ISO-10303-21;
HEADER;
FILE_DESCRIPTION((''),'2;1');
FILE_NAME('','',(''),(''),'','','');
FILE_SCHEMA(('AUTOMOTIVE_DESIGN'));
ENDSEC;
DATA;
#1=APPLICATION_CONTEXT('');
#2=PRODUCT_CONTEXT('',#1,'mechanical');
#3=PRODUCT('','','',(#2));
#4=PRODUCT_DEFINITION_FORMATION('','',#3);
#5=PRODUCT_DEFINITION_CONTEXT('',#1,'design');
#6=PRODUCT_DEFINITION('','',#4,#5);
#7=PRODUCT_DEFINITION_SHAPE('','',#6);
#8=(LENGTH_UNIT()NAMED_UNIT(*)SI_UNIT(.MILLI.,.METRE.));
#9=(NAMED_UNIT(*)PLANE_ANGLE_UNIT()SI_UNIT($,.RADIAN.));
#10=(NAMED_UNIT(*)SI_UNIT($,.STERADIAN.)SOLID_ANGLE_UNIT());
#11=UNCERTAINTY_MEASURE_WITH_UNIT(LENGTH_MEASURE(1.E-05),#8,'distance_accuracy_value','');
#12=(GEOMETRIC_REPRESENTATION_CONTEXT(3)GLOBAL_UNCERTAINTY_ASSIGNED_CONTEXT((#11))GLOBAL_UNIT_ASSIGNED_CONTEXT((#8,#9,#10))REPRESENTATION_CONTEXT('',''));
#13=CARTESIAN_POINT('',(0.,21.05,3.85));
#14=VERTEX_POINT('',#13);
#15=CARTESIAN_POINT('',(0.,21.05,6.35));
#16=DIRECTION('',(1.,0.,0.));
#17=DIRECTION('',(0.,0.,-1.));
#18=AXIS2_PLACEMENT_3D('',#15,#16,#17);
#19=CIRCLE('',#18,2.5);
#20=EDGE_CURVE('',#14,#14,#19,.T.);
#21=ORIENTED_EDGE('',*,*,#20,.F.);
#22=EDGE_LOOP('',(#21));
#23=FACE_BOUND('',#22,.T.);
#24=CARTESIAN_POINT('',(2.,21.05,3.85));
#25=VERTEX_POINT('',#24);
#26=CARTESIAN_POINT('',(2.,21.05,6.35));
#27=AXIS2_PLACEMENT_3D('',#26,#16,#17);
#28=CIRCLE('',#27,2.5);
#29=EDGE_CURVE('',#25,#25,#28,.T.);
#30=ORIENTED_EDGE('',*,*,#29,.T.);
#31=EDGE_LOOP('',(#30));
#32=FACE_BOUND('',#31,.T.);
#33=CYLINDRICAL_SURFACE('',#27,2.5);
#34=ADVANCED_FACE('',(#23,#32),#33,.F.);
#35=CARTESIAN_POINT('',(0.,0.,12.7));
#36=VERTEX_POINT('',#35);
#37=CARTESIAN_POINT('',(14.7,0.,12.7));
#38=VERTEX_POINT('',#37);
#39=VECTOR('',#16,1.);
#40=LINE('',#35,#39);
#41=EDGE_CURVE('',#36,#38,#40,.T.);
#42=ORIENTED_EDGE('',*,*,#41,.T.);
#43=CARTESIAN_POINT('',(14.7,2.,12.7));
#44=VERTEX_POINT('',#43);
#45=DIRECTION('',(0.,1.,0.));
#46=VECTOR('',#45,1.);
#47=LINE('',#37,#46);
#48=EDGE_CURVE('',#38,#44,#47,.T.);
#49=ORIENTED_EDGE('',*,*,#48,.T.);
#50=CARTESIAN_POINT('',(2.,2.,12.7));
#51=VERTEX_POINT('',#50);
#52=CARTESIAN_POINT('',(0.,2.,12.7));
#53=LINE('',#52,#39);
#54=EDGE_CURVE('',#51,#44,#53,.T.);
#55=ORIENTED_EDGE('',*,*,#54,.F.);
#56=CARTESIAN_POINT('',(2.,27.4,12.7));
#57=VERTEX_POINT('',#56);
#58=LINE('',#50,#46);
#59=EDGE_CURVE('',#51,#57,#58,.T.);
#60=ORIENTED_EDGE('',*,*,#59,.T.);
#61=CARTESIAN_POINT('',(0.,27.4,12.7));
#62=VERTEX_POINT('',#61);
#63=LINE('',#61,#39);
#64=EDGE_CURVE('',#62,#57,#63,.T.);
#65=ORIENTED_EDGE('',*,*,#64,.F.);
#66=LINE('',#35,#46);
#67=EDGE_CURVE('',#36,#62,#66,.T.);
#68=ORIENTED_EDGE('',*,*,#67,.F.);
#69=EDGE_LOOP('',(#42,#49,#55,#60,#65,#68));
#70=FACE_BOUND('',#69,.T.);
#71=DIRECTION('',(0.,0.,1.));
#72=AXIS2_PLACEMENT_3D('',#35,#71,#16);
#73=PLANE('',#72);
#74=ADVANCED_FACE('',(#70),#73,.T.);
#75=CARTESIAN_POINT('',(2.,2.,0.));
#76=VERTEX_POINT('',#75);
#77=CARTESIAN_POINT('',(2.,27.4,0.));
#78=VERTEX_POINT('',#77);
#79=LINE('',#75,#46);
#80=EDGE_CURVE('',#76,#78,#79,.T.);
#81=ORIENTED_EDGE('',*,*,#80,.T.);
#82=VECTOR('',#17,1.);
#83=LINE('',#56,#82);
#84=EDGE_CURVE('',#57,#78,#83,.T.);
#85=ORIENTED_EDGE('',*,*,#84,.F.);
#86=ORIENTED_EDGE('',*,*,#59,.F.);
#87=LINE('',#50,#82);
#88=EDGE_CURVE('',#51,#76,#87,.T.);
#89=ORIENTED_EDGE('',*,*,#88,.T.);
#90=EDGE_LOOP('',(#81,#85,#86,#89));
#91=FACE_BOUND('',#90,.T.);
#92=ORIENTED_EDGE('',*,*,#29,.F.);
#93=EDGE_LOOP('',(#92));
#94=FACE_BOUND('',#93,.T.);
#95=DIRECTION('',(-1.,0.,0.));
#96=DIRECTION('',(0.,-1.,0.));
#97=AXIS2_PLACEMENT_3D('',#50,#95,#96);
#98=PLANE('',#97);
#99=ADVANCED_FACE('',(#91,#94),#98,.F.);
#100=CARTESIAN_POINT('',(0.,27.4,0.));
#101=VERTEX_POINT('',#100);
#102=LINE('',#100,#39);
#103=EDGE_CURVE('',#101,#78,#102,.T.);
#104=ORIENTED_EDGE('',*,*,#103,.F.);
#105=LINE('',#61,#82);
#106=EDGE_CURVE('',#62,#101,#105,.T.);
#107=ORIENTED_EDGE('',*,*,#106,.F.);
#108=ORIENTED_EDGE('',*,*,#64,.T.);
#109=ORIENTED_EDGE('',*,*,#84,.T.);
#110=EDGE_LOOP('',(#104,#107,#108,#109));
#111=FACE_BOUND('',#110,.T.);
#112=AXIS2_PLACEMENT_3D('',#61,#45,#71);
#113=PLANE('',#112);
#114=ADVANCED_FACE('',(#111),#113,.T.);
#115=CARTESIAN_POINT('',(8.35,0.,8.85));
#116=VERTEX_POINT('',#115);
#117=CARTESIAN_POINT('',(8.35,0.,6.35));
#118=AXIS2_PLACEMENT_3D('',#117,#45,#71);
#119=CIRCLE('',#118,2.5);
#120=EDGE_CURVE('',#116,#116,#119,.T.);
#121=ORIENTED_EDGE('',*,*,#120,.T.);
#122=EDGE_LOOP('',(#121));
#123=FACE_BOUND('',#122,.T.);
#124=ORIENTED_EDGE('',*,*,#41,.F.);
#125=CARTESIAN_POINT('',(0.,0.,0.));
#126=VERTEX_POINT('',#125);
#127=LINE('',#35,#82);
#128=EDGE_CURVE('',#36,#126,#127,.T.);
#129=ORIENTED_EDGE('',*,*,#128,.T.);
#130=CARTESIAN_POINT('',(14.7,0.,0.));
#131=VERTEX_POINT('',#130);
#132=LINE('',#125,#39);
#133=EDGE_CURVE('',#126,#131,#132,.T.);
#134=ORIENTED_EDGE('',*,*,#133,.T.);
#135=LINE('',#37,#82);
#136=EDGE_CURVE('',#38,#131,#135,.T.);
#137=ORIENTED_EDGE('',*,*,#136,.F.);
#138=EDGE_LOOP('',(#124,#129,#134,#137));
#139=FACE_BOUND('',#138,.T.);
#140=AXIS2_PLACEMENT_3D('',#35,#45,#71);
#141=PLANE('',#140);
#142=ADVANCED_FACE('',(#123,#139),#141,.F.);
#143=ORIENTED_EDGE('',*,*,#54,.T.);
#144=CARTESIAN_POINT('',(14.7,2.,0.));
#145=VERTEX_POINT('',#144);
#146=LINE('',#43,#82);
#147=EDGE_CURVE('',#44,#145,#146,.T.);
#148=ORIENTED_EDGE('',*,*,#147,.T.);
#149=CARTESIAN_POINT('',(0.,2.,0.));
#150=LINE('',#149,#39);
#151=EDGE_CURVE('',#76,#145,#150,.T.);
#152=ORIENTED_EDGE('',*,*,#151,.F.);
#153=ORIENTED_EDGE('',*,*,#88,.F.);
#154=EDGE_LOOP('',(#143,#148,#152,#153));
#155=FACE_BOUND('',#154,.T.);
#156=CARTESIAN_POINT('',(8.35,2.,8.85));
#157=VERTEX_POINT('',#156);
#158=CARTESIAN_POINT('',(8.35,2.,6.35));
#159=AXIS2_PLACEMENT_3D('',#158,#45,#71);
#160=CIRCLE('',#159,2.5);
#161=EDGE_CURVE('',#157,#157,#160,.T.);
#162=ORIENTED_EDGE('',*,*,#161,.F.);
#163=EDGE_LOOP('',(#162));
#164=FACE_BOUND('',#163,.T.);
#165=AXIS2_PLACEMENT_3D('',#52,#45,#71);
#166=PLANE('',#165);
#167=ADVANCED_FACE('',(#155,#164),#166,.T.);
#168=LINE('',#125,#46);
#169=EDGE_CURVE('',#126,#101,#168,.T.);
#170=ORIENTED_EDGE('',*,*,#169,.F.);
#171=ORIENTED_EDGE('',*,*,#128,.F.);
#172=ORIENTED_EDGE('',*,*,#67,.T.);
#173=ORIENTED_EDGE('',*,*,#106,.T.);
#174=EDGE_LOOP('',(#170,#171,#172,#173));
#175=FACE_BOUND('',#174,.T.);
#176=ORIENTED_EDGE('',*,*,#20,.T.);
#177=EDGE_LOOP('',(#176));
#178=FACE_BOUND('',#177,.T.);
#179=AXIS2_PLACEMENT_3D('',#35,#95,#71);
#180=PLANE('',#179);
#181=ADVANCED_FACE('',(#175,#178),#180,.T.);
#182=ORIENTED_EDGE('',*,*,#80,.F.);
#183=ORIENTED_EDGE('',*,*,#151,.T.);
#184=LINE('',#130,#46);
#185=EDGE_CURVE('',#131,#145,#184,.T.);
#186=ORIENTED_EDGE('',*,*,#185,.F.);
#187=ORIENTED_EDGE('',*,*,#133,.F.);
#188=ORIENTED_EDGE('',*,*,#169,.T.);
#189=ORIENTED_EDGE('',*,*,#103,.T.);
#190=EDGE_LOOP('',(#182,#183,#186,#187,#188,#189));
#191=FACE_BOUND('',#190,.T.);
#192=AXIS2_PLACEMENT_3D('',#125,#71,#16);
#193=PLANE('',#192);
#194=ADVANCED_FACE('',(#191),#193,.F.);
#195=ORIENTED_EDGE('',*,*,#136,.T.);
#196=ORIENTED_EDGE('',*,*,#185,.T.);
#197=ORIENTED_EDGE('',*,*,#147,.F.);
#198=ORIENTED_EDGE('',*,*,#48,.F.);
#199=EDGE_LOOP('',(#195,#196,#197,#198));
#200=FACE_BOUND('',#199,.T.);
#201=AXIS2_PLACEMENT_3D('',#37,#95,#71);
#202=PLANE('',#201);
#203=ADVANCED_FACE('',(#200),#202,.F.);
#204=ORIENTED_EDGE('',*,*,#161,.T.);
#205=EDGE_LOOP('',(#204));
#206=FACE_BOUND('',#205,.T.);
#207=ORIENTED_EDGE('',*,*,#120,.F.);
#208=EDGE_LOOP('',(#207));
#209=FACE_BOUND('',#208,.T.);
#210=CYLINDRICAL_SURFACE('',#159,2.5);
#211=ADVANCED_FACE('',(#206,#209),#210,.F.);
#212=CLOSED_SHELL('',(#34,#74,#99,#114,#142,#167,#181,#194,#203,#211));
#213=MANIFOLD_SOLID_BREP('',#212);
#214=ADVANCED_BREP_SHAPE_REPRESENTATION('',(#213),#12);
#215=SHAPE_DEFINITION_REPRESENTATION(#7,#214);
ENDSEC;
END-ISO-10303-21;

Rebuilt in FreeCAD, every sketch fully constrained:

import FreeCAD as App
import Part
import Sketcher
Q = App.Units.Quantity


def add_polygon(sketch, points):
    """Adds a closed chain of lines whose ends are joined by coincident constraints."""
    first, n = sketch.GeometryCount, len(points)
    for a, b in zip(points, points[1:] + points[:1]):
        sketch.addGeometry(Part.LineSegment(App.Vector(*a, 0), App.Vector(*b, 0)), False)
    for i in range(n):
        sketch.addConstraint(Sketcher.Constraint("Coincident", first + i, 2, first + (i + 1) % n, 1))

doc = App.newDocument("Part")
body = doc.addObject("PartDesign::Body", "Body")

# Sketch on XY plane
sketch1 = body.newObject("Sketcher::SketchObject", "Sketch")
sketch1.AttachmentSupport = (doc.getObject("XY_Plane"), [""])
sketch1.MapMode = "FlatFace"
add_polygon(sketch1, [(0, 0), (14.7, 0), (14.7, 2), (2, 2), (2, 27.4), (0, 27.4)])  # lines 0-5
sketch1.addConstraint([
    Sketcher.Constraint("Horizontal", 0),
    Sketcher.Constraint("Vertical", 1),
    Sketcher.Constraint("Horizontal", 2),
    Sketcher.Constraint("Vertical", 3),
    Sketcher.Constraint("Horizontal", 4),
    Sketcher.Constraint("Vertical", 5),
    Sketcher.Constraint("Coincident", 5, 2, -1, 1),
    Sketcher.Constraint("Equal", 4, 1),
    Sketcher.Constraint("DistanceX", 4, 2, 4, 1, Q("2 mm")),
    Sketcher.Constraint("DistanceX", 0, 1, 0, 2, Q("14.7 mm")),
    Sketcher.Constraint("DistanceY", 3, 1, 3, 2, Q("25.4 mm")),
])
pad1 = body.newObject("PartDesign::Pad", "Pad")
pad1.Profile = sketch1
pad1.Length = 12.7

# Sketch on YZ plane
sketch2 = body.newObject("Sketcher::SketchObject", "Sketch001")
sketch2.AttachmentSupport = (doc.getObject("YZ_Plane"), [""])
sketch2.MapMode = "FlatFace"
sketch2.AttachmentOffset = App.Placement(App.Vector(0, 0, 2), App.Rotation())
sketch2.addGeometry(Part.Circle(App.Vector(21.05, 6.35, 0), App.Vector(0, 0, 1), 2.5), False)
sketch2.addConstraint([
    Sketcher.Constraint("Diameter", 0, Q("5 mm")),
    Sketcher.Constraint("DistanceX", -1, 1, 0, 3, Q("21.05 mm")),
    Sketcher.Constraint("DistanceY", -1, 1, 0, 3, Q("6.35 mm")),
])
doc.recompute()
hole = body.newObject("PartDesign::Hole", "Hole")
hole.Profile = sketch2
hole.ThreadType = "None"
hole.Diameter = 5
hole.DepthType = "ThroughAll"

# Sketch on XZ plane
sketch3 = body.newObject("Sketcher::SketchObject", "Sketch002")
sketch3.AttachmentSupport = (doc.getObject("XZ_Plane"), [""])
sketch3.MapMode = "FlatFace"
sketch3.AttachmentOffset = App.Placement(App.Vector(0, 0, -2), App.Rotation())
sketch3.addGeometry(Part.Circle(App.Vector(8.35, 6.35, 0), App.Vector(0, 0, 1), 2.5), False)
sketch3.addConstraint([
    Sketcher.Constraint("Diameter", 0, Q("5 mm")),
    Sketcher.Constraint("DistanceX", -1, 1, 0, 3, Q("8.35 mm")),
    Sketcher.Constraint("DistanceY", -1, 1, 0, 3, Q("6.35 mm")),
])
doc.recompute()
hole2 = body.newObject("PartDesign::Hole", "Hole001")
hole2.Profile = sketch3
hole2.ThreadType = "None"
hole2.Diameter = 5
hole2.DepthType = "ThroughAll"
hole2.Reversed = True

doc.recompute()
